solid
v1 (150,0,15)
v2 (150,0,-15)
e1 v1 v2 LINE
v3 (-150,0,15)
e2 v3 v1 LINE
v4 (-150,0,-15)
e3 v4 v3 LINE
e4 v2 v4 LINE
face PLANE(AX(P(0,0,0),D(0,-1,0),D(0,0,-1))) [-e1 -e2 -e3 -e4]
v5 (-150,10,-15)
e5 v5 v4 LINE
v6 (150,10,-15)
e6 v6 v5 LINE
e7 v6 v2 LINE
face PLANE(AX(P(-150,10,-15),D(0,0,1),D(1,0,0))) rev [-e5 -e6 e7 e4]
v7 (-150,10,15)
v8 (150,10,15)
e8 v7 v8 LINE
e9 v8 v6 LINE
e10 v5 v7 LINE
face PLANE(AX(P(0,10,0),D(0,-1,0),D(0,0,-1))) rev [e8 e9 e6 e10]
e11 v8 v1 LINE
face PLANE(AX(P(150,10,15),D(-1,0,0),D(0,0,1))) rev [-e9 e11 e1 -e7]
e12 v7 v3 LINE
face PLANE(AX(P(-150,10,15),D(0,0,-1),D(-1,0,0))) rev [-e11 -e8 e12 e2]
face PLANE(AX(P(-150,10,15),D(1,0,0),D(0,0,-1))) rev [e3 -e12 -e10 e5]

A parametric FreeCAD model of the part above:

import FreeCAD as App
import Part
import Sketcher
from FreeCAD import Vector
Q = App.Units.Quantity


def add_polygon(sketch, points):
    """Adds a closed chain of lines whose ends are joined by coincident constraints."""
    first, n = sketch.GeometryCount, len(points)
    for a, b in zip(points, points[1:] + points[:1]):
        sketch.addGeometry(Part.LineSegment(App.Vector(*a, 0), App.Vector(*b, 0)), False)
    for i in range(n):
        sketch.addConstraint(Sketcher.Constraint("Coincident", first + i, 2, first + (i + 1) % n, 1))

doc = App.newDocument("Part")
body = doc.addObject("PartDesign::Body", "Body")

sketch1 = body.newObject("Sketcher::SketchObject", "Sketch")
sketch1.AttachmentSupport = (doc.getObject("XZ_Plane"), [""])
sketch1.MapMode = "FlatFace"
add_polygon(sketch1, [(-150, -15), (-150, 15), (150, 15), (150, -15)])
sketch1.addConstraint([
    Sketcher.Constraint("Vertical", 0),
    Sketcher.Constraint("Horizontal", 1),
    Sketcher.Constraint("Vertical", 2),
    Sketcher.Constraint("Horizontal", 3),
    Sketcher.Constraint("Symmetric", 0, 2, 2, 2, -1, 1),
    Sketcher.Constraint("DistanceX", 1, 1, 1, 2, Q("300 mm")),
    Sketcher.Constraint("DistanceY", 0, 1, 0, 2, Q("30 mm")),
])
pad1 = body.newObject("PartDesign::Pad", "Pad")
pad1.Profile = sketch1
pad1.Length = 10
pad1.Reversed = True

doc.recompute()
